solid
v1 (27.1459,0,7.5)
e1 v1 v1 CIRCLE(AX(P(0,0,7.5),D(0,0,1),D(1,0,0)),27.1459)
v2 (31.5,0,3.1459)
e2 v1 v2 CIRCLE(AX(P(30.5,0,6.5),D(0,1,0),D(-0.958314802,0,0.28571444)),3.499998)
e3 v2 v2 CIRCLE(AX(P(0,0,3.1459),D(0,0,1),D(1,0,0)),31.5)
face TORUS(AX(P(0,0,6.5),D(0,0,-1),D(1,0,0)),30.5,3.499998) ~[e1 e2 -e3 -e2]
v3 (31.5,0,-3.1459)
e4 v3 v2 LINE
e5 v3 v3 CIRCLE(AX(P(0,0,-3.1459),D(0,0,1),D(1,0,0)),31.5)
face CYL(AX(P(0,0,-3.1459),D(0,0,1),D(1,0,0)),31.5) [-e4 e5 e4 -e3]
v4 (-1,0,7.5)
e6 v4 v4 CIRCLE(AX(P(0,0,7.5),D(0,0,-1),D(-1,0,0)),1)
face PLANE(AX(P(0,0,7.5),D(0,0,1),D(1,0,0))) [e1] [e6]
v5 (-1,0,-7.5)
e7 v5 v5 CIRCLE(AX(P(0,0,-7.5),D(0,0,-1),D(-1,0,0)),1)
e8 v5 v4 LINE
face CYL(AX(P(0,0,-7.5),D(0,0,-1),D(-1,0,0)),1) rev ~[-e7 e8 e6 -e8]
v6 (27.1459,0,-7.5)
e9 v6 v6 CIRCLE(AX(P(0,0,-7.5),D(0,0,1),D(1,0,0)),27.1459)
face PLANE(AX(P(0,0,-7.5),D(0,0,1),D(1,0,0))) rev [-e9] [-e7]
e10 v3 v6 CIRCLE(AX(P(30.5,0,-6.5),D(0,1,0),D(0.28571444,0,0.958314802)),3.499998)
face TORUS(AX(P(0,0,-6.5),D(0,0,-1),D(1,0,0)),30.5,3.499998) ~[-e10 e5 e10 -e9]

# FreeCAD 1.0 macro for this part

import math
import FreeCAD as App
import Part
import Sketcher
from FreeCAD import Vector

doc = App.newDocument("Part")
body = doc.addObject("PartDesign::Body", "Body")

sketch1 = doc.addObject("Sketcher::SketchObject", "Sketch")
body.addObject(sketch1)
sketch1.AttachmentSupport = (doc.XZ_Plane, [""])
sketch1.MapMode = "FlatFace"
sketch1.addGeometry([
    Part.LineSegment(Vector(0, -7.5, 0), Vector(0, 7.5, 0)),
    Part.LineSegment(Vector(0, 7.5, 0), Vector(27.1, 7.5, 0)),
    Part.ArcOfCircle(Part.Circle(Vector(30.5, 6.5, 0), Vector(0, 0, 1), 3.5), math.radians(-73), math.radians(163)),
    Part.LineSegment(Vector(31.5, 3.1, 0), Vector(31.5, -3.1, 0)),
    Part.ArcOfCircle(Part.Circle(Vector(30.5, -6.5, 0), Vector(0, 0, 1), 3.5), math.radians(-163), math.radians(73)),
    Part.LineSegment(Vector(27.1, -7.5, 0), Vector(0, -7.5, 0)),
], False)
sketch1.addConstraint([
    Sketcher.Constraint("Coincident", 0, 2, 1, 1),
    Sketcher.Constraint("Coincident", 1, 2, 2, 2),
    Sketcher.Constraint("Coincident", 2, 1, 3, 1),
    Sketcher.Constraint("Coincident", 3, 2, 4, 2),
    Sketcher.Constraint("Coincident", 4, 1, 5, 1),
    Sketcher.Constraint("Coincident", 5, 2, 0, 1),
    Sketcher.Constraint("Vertical", 0),
    Sketcher.Constraint("Horizontal", 1),
    Sketcher.Constraint("Vertical", 3),
    Sketcher.Constraint("Horizontal", 5),
    Sketcher.Constraint("Equal", 2, 4),
    Sketcher.Constraint("Symmetric", 0, 2, 5, 2, -1, 1),
    Sketcher.Constraint("Symmetric", 2, 3, 4, 3, -1),
    Sketcher.Constraint("Radius", 2, 3.5),
    Sketcher.Constraint("DistanceY", 0, 1, 0, 2, 15.0),
    Sketcher.Constraint("DistanceY", 2, 3, 0, 2, 1.0),
    Sketcher.Constraint("DistanceX", 2, 3, 2, 1, 1.0),
    Sketcher.Constraint("DistanceX", -1, 1, 2, 1, 31.5),
])
revolution = doc.addObject("PartDesign::Revolution", "Revolution")
body.addObject(revolution)
revolution.Profile = sketch1
revolution.ReferenceAxis = (sketch1, ["V_Axis"])
revolution.Angle = 360

sketch2 = doc.addObject("Sketcher::SketchObject", "Sketch001")
body.addObject(sketch2)
sketch2.AttachmentSupport = (doc.XY_Plane, [""])
sketch2.MapMode = "FlatFace"
sketch2.AttachmentOffset = App.Placement(Vector(0, 0, -7.5), App.Rotation())
sketch2.addGeometry(Part.Circle(Vector(0, 0, 0), Vector(0, 0, 1), 1), False)
sketch2.addConstraint([
    Sketcher.Constraint("Coincident", 0, 3, -1, 1),
    Sketcher.Constraint("Diameter", 0, 2.0),
])
pocket1 = doc.addObject("PartDesign::Pocket", "Pocket")
body.addObject(pocket1)
pocket1.Profile = sketch2
pocket1.Type = "ThroughAll"
pocket1.Reversed = True

doc.recompute()
